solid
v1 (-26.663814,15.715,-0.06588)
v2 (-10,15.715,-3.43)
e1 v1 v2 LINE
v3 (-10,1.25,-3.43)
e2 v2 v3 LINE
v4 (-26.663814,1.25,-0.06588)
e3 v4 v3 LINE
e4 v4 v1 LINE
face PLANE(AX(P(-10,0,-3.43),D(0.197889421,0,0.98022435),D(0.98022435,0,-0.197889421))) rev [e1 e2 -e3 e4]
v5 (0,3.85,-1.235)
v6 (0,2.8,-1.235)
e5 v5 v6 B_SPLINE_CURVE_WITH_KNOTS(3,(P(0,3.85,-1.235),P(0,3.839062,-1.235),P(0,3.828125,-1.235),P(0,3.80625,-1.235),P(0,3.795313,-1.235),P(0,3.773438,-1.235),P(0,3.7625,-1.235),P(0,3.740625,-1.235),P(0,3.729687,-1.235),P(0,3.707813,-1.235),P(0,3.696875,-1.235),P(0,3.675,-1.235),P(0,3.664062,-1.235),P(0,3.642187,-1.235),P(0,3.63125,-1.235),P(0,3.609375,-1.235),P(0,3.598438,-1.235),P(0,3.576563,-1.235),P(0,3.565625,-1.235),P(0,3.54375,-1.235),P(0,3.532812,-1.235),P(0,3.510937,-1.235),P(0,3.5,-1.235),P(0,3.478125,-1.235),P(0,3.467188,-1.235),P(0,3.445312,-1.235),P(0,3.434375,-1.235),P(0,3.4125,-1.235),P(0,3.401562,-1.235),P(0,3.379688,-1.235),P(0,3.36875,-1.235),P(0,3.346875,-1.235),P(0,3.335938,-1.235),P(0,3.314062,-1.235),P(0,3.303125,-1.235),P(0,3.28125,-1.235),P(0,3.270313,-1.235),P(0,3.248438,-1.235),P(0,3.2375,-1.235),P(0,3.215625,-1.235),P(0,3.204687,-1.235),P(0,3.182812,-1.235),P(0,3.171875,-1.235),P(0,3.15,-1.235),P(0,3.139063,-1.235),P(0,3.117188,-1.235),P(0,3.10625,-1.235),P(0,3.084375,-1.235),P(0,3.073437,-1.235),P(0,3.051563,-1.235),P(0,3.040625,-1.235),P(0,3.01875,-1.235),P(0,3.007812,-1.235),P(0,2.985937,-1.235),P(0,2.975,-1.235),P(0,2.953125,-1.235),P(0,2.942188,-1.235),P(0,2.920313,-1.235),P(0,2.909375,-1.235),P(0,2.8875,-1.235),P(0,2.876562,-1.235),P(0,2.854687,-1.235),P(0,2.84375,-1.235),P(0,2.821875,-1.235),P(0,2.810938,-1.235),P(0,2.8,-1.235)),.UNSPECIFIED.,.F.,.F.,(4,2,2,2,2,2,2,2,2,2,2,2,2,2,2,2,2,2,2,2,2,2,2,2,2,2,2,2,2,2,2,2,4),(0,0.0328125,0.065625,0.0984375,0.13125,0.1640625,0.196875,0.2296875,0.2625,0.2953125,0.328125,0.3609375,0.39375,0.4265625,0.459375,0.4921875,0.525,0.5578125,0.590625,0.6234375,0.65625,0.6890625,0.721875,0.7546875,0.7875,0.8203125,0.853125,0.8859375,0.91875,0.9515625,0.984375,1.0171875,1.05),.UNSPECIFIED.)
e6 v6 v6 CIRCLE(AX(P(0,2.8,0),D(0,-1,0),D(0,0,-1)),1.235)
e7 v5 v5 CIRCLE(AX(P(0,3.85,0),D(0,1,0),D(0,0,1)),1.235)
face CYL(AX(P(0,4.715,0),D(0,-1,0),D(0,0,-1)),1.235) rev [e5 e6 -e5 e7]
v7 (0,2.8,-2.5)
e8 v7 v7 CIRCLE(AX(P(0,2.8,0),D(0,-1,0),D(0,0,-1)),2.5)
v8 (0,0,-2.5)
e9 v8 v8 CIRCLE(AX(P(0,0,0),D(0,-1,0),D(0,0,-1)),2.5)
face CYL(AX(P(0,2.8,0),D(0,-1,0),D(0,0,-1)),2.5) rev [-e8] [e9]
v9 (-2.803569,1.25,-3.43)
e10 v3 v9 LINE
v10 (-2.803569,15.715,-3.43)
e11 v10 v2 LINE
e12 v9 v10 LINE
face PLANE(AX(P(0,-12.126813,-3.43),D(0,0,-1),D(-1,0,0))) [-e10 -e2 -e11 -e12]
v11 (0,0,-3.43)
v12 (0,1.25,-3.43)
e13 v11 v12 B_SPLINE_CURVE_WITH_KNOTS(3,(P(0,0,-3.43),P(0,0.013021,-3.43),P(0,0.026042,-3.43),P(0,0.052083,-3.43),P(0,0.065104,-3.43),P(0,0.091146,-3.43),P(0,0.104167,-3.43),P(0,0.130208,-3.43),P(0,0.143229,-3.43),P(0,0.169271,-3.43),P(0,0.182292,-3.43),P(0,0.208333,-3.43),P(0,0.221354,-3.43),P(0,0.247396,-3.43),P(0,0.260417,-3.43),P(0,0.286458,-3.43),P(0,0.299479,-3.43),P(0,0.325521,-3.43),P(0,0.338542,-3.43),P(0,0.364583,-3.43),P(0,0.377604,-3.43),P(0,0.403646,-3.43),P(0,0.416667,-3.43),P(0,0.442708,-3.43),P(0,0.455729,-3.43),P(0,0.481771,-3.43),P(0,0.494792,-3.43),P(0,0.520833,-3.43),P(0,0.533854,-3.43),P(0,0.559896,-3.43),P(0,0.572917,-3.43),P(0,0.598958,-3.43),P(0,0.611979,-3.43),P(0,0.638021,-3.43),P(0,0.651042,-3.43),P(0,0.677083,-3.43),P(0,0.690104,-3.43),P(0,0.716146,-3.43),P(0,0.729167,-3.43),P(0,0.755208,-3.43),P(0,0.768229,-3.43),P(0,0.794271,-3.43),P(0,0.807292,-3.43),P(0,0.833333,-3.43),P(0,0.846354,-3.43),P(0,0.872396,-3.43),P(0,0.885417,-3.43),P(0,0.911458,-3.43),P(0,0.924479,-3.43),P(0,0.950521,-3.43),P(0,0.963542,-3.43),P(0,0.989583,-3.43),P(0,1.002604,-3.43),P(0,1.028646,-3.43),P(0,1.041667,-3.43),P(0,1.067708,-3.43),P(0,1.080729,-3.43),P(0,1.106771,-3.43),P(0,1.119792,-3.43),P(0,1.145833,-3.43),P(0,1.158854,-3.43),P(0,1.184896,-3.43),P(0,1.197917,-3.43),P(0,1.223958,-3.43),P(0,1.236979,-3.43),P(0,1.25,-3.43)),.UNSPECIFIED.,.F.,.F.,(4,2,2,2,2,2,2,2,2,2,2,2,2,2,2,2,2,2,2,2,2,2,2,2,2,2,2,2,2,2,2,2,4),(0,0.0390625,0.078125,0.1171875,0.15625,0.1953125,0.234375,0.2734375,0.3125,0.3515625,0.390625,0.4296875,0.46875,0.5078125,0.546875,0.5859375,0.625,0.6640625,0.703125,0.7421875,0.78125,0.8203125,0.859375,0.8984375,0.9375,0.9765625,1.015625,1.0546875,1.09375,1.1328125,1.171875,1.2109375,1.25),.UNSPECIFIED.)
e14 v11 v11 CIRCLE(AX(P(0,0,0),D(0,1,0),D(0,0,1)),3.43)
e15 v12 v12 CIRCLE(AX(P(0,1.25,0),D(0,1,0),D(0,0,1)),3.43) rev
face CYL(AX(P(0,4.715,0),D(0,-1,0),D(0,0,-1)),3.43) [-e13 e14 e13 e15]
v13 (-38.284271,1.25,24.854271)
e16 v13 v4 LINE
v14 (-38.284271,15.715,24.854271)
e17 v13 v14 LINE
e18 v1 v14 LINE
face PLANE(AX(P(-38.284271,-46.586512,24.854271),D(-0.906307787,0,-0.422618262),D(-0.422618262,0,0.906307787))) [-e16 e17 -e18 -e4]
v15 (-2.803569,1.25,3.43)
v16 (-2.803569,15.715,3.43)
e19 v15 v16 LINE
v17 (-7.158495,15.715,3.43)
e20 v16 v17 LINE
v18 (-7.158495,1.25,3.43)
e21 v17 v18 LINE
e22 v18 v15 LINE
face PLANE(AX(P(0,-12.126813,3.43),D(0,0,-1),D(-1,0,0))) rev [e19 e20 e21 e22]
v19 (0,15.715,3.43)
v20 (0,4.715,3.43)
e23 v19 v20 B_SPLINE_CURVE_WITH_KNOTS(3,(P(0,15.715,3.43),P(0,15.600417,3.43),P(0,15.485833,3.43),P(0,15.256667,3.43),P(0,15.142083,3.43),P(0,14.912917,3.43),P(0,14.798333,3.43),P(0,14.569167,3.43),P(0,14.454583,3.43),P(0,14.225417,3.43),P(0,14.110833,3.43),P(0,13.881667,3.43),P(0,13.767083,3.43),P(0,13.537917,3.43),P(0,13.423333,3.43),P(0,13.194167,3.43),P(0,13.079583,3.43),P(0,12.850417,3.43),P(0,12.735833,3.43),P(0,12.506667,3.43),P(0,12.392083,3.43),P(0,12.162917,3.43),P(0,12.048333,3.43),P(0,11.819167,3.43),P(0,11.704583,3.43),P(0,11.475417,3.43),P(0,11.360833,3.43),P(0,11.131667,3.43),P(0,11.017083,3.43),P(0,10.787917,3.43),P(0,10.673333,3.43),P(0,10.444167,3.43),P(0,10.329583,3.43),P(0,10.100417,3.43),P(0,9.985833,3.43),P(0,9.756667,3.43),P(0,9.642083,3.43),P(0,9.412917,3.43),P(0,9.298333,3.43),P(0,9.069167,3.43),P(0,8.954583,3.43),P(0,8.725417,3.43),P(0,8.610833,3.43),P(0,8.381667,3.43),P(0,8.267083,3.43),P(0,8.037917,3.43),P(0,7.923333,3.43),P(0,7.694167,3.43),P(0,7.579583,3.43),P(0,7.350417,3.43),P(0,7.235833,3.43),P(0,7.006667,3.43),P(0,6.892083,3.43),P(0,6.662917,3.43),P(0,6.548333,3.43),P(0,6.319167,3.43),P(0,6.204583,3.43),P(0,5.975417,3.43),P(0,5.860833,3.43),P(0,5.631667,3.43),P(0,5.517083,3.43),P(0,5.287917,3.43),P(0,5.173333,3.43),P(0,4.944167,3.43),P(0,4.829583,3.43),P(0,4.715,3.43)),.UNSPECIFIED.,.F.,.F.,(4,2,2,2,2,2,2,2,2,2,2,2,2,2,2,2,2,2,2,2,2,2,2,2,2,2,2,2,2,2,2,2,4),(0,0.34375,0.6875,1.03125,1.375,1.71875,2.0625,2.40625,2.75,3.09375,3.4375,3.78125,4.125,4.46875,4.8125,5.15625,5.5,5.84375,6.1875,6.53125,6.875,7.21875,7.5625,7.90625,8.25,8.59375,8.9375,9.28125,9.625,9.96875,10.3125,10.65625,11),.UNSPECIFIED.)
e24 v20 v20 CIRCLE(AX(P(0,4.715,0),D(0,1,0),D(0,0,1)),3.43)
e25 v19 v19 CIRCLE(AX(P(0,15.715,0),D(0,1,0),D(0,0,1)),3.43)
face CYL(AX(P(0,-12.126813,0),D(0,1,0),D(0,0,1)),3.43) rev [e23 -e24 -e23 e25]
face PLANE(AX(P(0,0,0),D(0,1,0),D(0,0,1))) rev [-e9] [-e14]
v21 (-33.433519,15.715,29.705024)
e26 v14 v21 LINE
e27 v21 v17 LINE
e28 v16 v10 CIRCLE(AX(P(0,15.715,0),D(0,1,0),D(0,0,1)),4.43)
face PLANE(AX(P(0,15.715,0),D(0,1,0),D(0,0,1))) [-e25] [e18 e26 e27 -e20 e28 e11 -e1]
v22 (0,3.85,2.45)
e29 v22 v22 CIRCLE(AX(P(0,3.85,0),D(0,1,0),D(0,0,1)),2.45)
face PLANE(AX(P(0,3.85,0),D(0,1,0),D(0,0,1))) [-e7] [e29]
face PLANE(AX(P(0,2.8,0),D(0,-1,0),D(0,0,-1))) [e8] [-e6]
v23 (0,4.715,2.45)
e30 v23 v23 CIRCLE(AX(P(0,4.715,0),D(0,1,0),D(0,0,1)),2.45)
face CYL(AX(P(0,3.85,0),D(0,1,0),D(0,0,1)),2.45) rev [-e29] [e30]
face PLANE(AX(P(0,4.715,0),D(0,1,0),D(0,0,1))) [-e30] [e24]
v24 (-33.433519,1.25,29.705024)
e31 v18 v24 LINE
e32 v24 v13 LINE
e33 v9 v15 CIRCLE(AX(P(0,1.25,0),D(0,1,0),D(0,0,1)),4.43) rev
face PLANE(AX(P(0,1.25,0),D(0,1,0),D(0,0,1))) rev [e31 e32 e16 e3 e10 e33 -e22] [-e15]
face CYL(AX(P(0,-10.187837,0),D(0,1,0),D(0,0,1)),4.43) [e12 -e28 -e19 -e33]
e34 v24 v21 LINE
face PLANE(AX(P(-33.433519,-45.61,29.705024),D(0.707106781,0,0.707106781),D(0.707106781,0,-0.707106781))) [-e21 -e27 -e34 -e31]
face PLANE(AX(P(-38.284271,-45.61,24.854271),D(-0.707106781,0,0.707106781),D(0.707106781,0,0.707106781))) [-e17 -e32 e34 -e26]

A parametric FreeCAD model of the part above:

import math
import FreeCAD as App
import Part
import Sketcher
Q = App.Units.Quantity

doc = App.newDocument("Part")
body = doc.addObject("PartDesign::Body", "Body")

# Sketch on XZ plane
sketch1 = doc.addObject("Sketcher::SketchObject", "Sketch")
body.addObject(sketch1)
sketch1.AttachmentSupport = (doc.XZ_Plane, [""])
sketch1.MapMode = "FlatFace"
sketch1.addGeometry(Part.Circle(App.Vector(0, 0, 0), App.Vector(0, 0, 1), 3.4), False)
sketch1.addGeometry(Part.Circle(App.Vector(0, 0, 0), App.Vector(0, 0, 1), 1.2), False)
sketch1.addConstraint(Sketcher.Constraint("Coincident", 0, 3, -1, 1))
sketch1.addConstraint(Sketcher.Constraint("Coincident", 1, 3, -1, 1))
sketch1.addConstraint(Sketcher.Constraint("Diameter", 0, 6.86))
sketch1.addConstraint(Sketcher.Constraint("Diameter", 1, 2.47))
pad1 = doc.addObject("PartDesign::Pad", "Pad")
body.addObject(pad1)
pad1.Profile = sketch1
pad1.Length = 4.715
pad1.Reversed = True

# Sketch on XZ plane
sketch2 = doc.addObject("Sketcher::SketchObject", "Sketch001")
body.addObject(sketch2)
sketch2.AttachmentSupport = (doc.XZ_Plane, [""])
sketch2.MapMode = "FlatFace"
sketch2.AttachmentOffset = App.Placement(App.Vector(0, 0, -4.715), App.Rotation())
sketch2.addGeometry(Part.Circle(App.Vector(0, 0, 0), App.Vector(0, 0, 1), 2.5), False)
sketch2.addConstraint(Sketcher.Constraint("Coincident", 0, 3, -1, 1))
sketch2.addConstraint(Sketcher.Constraint("Diameter", 0, 4.9))
pocket1 = doc.addObject("PartDesign::Pocket", "Pocket")
body.addObject(pocket1)
pocket1.Profile = sketch2
pocket1.Length = 0.865
pocket1.Reversed = True

# Sketch on XZ plane
sketch3 = doc.addObject("Sketcher::SketchObject", "Sketch002")
body.addObject(sketch3)
sketch3.AttachmentSupport = (doc.XZ_Plane, [""])
sketch3.MapMode = "FlatFace"
sketch3.AttachmentOffset = App.Placement(App.Vector(0, 0, -1.25), App.Rotation())
sketch3.addGeometry(Part.ArcOfCircle(Part.Circle(App.Vector(0, 0, 0), App.Vector(0, 0, 1), 3.4), math.radians(90), math.radians(270)), False)
sketch3.addGeometry(Part.LineSegment(App.Vector(0, -3.4, 0), App.Vector(-6.6, -3.4, 0)), False)
sketch3.addGeometry(Part.ArcOfCircle(Part.Circle(App.Vector(-6.6, 0, 0), App.Vector(0, 0, 1), 3.4), math.radians(90), math.radians(270)), False)
sketch3.addGeometry(Part.LineSegment(App.Vector(-6.6, 3.4, 0), App.Vector(0, 3.4, 0)), False)
sketch3.addConstraint(Sketcher.Constraint("Tangent", 0, 2, 1, 1))
sketch3.addConstraint(Sketcher.Constraint("Tangent", 1, 2, 2, 2))
sketch3.addConstraint(Sketcher.Constraint("Tangent", 2, 1, 3, 1))
sketch3.addConstraint(Sketcher.Constraint("Tangent", 3, 2, 0, 1))
sketch3.addConstraint(Sketcher.Constraint("Horizontal", 1))
sketch3.addConstraint(Sketcher.Constraint("Horizontal", 3))
sketch3.addConstraint(Sketcher.Constraint("Coincident", 0, 3, -1, 1))
sketch3.addConstraint(Sketcher.Constraint("Radius", 0, 3.43))
sketch3.addConstraint(Sketcher.Constraint("DistanceX", 1, 2, 1, 1, 6.57))
pad2 = doc.addObject("PartDesign::Pad", "Pad001")
body.addObject(pad2)
pad2.Profile = sketch3
pad2.Length = 14.465
pad2.Reversed = True

# Sketch on XZ plane
sketch4 = doc.addObject("Sketcher::SketchObject", "Sketch003")
body.addObject(sketch4)
sketch4.AttachmentSupport = (doc.XZ_Plane, [""])
sketch4.MapMode = "FlatFace"
sketch4.addGeometry(Part.Circle(App.Vector(0, 0, 0), App.Vector(0, 0, 1), 2.5), False)
sketch4.addConstraint(Sketcher.Constraint("Coincident", 0, 3, -1, 1))
sketch4.addConstraint(Sketcher.Constraint("Diameter", 0, 5.0))
pocket2 = doc.addObject("PartDesign::Pocket", "Pocket001")
body.addObject(pocket2)
pocket2.Profile = sketch4
pocket2.Length = 2.8

# Sketch on YZ plane
sketch5 = doc.addObject("Sketcher::SketchObject", "Sketch004")
body.addObject(sketch5)
sketch5.AttachmentSupport = (doc.YZ_Plane, [""])
sketch5.MapMode = "FlatFace"
sketch5.AttachmentOffset = App.Placement(App.Vector(0, 0, -10), App.Rotation())
sketch5.addGeometry(Part.LineSegment(App.Vector(16, -3, 0), App.Vector(1, -3, 0)), False)
sketch5.addGeometry(Part.LineSegment(App.Vector(1, -3, 0), App.Vector(1, 3, 0)), False)
sketch5.addGeometry(Part.LineSegment(App.Vector(1, 3, 0), App.Vector(16, 3, 0)), False)
sketch5.addGeometry(Part.LineSegment(App.Vector(16, 3, 0), App.Vector(16, -3, 0)), False)
sketch5.addConstraint(Sketcher.Constraint("Coincident", 0, 2, 1, 1))
sketch5.addConstraint(Sketcher.Constraint("Coincident", 1, 2, 2, 1))
sketch5.addConstraint(Sketcher.Constraint("Coincident", 2, 2, 3, 1))
sketch5.addConstraint(Sketcher.Constraint("Coincident", 3, 2, 0, 1))
sketch5.addConstraint(Sketcher.Constraint("Horizontal", 0))
sketch5.addConstraint(Sketcher.Constraint("Vertical", 1))
sketch5.addConstraint(Sketcher.Constraint("Horizontal", 2))
sketch5.addConstraint(Sketcher.Constraint("Vertical", 3))
sketch5.addConstraint(Sketcher.Constraint("DistanceY", 1, 1, 1, 2, 6.86))
sketch5.addConstraint(Sketcher.Constraint("DistanceX", 0, 2, 0, 1, 14.465))
sketch5.addConstraint(Sketcher.Constraint("DistanceX", -1, 1, 0, 2, 1.25))
sketch5.addConstraint(Sketcher.Constraint("DistanceY", 0, 2, -1, 1, 3.43))
pad3 = doc.addObject("PartDesign::Pad", "Pad002")
body.addObject(pad3)
pad3.Profile = sketch5
pad3.Length = 5

# Sketch on XZ plane
sketch6 = doc.addObject("Sketcher::SketchObject", "Sketch005")
body.addObject(sketch6)
sketch6.AttachmentSupport = (doc.XZ_Plane, [""])
sketch6.MapMode = "FlatFace"
sketch6.AttachmentOffset = App.Placement(App.Vector(0, 0, -15.715), App.Rotation())
sketch6.addGeometry(Part.LineSegment(App.Vector(-10, -3, 0), App.Vector(-38, 25, 0)), False)
sketch6.addGeometry(Part.LineSegment(App.Vector(-38, 25, 0), App.Vector(-33, 30, 0)), False)
sketch6.addGeometry(Part.LineSegment(App.Vector(-33, 30, 0), App.Vector(-5, 1, 0)), False)
sketch6.addGeometry(Part.LineSegment(App.Vector(-5, 1, 0), App.Vector(-10, -3, 0)), False)
sketch6.addConstraint(Sketcher.Constraint("Coincident", 0, 2, 1, 1))
sketch6.addConstraint(Sketcher.Constraint("Coincident", 1, 2, 2, 1))
sketch6.addConstraint(Sketcher.Constraint("Coincident", 2, 2, 3, 1))
sketch6.addConstraint(Sketcher.Constraint("Coincident", 3, 2, 0, 1))
sketch6.addConstraint(Sketcher.Constraint("Perpendicular", 0, 1))
sketch6.addConstraint(Sketcher.Constraint("Perpendicular", 1, 2))
sketch6.addConstraint(Sketcher.Constraint("Perpendicular", 2, 3))
sketch6.addConstraint(Sketcher.Constraint("Angle", 0, Q("135 deg")))
sketch6.addConstraint(Sketcher.Constraint("Distance", 0, 40.0))
sketch6.addConstraint(Sketcher.Constraint("DistanceX", 3, 2, -1, 1, 10.0))
sketch6.addConstraint(Sketcher.Constraint("Distance", 1, 6.86))
sketch6.addConstraint(Sketcher.Constraint("DistanceY", 3, 2, -1, 1, 3.43))
pad4 = doc.addObject("PartDesign::Pad", "Pad003")
body.addObject(pad4)
pad4.Profile = sketch6
pad4.Length = 14.465

# Sketch on XZ plane
sketch7 = doc.addObject("Sketcher::SketchObject", "Sketch006")
body.addObject(sketch7)
sketch7.AttachmentSupport = (doc.XZ_Plane, [""])
sketch7.MapMode = "FlatFace"
sketch7.AttachmentOffset = App.Placement(App.Vector(0, 0, -15.715), App.Rotation())
sketch7.addGeometry(Part.LineSegment(App.Vector(-20, -14, 0), App.Vector(-38, 25, 0)), False)
sketch7.addGeometry(Part.LineSegment(App.Vector(-38, 25, 0), App.Vector(-10, -3, 0)), False)
sketch7.addGeometry(Part.LineSegment(App.Vector(-10, -3, 0), App.Vector(-20, -14, 0)), False)
sketch7.addConstraint(Sketcher.Constraint("Coincident", 0, 2, 1, 1))
sketch7.addConstraint(Sketcher.Constraint("Coincident", 1, 2, 2, 1))
sketch7.addConstraint(Sketcher.Constraint("Coincident", 2, 2, 0, 1))
sketch7.addConstraint(Sketcher.Constraint("Perpendicular", 1, 2))
sketch7.addConstraint(Sketcher.Constraint("Angle", 0, Q("115 deg")))
sketch7.addConstraint(Sketcher.Constraint("Angle", 1, Q("-45 deg")))
sketch7.addConstraint(Sketcher.Constraint("Distance", 1, 40.0))
sketch7.addConstraint(Sketcher.Constraint("DistanceX", 1, 2, -1, 1, 10.0))
sketch7.addConstraint(Sketcher.Constraint("DistanceY", 1, 2, -1, 1, 3.43))
pad5 = doc.addObject("PartDesign::Pad", "Pad004")
body.addObject(pad5)
pad5.Profile = sketch7
pad5.Length = 14.465

# Sketch on XZ plane
sketch8 = doc.addObject("Sketcher::SketchObject", "Sketch007")
body.addObject(sketch8)
sketch8.AttachmentSupport = (doc.XZ_Plane, [""])
sketch8.MapMode = "FlatFace"
sketch8.AttachmentOffset = App.Placement(App.Vector(0, 0, -1.25), App.Rotation())
sketch8.addGeometry(Part.LineSegment(App.Vector(-2.8, -3.4, 0), App.Vector(0, -3.4, 0)), False)
sketch8.addGeometry(Part.ArcOfCircle(Part.Circle(App.Vector(0, 0, 0), App.Vector(0, 0, 1), 3.4), math.radians(-90), math.radians(90)), False)
sketch8.addGeometry(Part.LineSegment(App.Vector(0, 3.4, 0), App.Vector(-2.8, 3.4, 0)), False)
sketch8.addGeometry(Part.ArcOfCircle(Part.Circle(App.Vector(0, 0, 0), App.Vector(0, 0, 1), 4.4), math.radians(-129), math.radians(129)), False)
sketch8.addConstraint(Sketcher.Constraint("Tangent", 0, 2, 1, 1))
sketch8.addConstraint(Sketcher.Constraint("Tangent", 1, 2, 2, 1))
sketch8.addConstraint(Sketcher.Constraint("Coincident", 2, 2, 3, 2))
sketch8.addConstraint(Sketcher.Constraint("Coincident", 3, 1, 0, 1))
sketch8.addConstraint(Sketcher.Constraint("Horizontal", 0))
sketch8.addConstraint(Sketcher.Constraint("Horizontal", 2))
sketch8.addConstraint(Sketcher.Constraint("Coincident", 1, 3, -1, 1))
sketch8.addConstraint(Sketcher.Constraint("Coincident", 3, 3, -1, 1))
sketch8.addConstraint(Sketcher.Constraint("Radius", 1, 3.43))
sketch8.addConstraint(Sketcher.Constraint("Radius", 3, 4.43))
pad6 = doc.addObject("PartDesign::Pad", "Pad005")
body.addObject(pad6)
pad6.Profile = sketch8
pad6.Length = 14.465
pad6.Reversed = True

# Sketch on XZ plane
sketch9 = doc.addObject("Sketcher::SketchObject", "Sketch008")
body.addObject(sketch9)
sketch9.AttachmentSupport = (doc.XZ_Plane, [""])
sketch9.MapMode = "FlatFace"
sketch9.AttachmentOffset = App.Placement(App.Vector(0, 0, -15.715), App.Rotation())
sketch9.addGeometry(Part.LineSegment(App.Vector(-27, 0, 0), App.Vector(-10, -3, 0)), False)
sketch9.addGeometry(Part.LineSegment(App.Vector(-10, -3, 0), App.Vector(-20, -14, 0)), False)
sketch9.addGeometry(Part.LineSegment(App.Vector(-20, -14, 0), App.Vector(-27, 0, 0)), False)
sketch9.addConstraint(Sketcher.Constraint("Coincident", 0, 2, 1, 1))
sketch9.addConstraint(Sketcher.Constraint("Coincident", 1, 2, 2, 1))
sketch9.addConstraint(Sketcher.Constraint("Coincident", 2, 2, 0, 1))
sketch9.addConstraint(Sketcher.Constraint("Angle", 1, Q("-135 deg")))
sketch9.addConstraint(Sketcher.Constraint("Angle", 2, Q("115 deg")))
sketch9.addConstraint(Sketcher.Constraint("Distance", 0, 17.0))
sketch9.addConstraint(Sketcher.Constraint("DistanceX", 0, 2, -1, 1, 10.0))
sketch9.addConstraint(Sketcher.Constraint("DistanceY", 0, 2, -1, 1, 3.43))
sketch9.addConstraint(Sketcher.Constraint("Distance", 1, 14.558809))
pocket3 = doc.addObject("PartDesign::Pocket", "Pocket002")
body.addObject(pocket3)
pocket3.Profile = sketch9
pocket3.Type = "ThroughAll"
pocket3.Reversed = True

doc.recompute()
